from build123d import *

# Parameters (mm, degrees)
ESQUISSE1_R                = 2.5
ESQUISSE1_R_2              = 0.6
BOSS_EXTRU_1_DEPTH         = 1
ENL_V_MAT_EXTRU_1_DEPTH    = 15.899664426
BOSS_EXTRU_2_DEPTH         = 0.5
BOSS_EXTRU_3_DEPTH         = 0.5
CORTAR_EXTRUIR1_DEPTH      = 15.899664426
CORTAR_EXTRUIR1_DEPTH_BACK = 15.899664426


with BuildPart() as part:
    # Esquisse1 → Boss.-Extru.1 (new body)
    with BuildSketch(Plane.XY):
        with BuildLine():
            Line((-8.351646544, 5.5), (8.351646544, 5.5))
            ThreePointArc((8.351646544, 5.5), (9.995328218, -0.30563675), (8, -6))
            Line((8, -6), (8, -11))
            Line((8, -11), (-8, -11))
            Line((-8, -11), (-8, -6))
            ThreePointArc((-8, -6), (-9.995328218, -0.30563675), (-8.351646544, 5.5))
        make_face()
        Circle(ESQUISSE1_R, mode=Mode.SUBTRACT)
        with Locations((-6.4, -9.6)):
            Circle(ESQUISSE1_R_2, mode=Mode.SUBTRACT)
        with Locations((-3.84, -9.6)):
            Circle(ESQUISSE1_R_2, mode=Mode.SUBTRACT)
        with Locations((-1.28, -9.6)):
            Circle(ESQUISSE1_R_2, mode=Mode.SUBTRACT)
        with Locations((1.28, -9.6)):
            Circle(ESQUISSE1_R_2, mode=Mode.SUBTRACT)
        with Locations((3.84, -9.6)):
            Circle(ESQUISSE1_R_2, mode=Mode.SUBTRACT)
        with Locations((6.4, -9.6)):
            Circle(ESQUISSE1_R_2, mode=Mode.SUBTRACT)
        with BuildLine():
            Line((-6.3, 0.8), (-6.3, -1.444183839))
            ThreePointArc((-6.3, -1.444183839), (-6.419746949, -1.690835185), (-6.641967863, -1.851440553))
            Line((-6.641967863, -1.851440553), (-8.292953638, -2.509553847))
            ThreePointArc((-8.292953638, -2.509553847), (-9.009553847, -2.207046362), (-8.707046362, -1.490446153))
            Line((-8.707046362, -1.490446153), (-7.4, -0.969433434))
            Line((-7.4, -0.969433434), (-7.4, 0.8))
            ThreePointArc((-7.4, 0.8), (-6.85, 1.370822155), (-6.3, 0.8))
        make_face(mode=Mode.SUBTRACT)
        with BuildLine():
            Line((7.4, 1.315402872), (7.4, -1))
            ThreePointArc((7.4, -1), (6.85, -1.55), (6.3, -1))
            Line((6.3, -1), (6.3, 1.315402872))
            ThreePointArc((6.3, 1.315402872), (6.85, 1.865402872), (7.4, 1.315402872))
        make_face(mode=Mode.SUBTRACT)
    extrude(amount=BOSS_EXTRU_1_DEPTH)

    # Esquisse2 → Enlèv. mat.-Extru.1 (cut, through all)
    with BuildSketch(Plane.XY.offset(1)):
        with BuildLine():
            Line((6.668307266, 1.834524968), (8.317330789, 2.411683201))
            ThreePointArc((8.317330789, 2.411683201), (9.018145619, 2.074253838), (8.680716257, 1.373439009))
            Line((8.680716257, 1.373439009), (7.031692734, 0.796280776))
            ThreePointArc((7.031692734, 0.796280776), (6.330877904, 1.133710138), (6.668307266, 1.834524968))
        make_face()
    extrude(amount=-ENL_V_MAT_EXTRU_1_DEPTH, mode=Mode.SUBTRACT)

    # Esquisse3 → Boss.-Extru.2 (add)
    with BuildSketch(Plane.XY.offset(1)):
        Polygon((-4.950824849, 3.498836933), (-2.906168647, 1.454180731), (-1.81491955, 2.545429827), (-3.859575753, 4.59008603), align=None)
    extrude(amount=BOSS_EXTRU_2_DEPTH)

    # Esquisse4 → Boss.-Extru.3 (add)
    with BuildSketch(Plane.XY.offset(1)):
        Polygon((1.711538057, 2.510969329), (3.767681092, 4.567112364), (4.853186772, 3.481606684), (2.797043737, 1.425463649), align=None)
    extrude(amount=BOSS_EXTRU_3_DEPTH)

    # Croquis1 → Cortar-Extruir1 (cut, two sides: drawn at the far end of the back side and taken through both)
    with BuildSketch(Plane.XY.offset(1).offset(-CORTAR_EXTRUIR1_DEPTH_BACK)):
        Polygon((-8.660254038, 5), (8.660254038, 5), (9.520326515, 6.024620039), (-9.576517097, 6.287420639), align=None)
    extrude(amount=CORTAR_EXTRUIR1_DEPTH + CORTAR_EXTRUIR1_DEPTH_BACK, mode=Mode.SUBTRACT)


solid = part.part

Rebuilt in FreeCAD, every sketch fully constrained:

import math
import FreeCAD as App
import Part
import Sketcher
Q = App.Units.Quantity


def add_polygon(sketch, points):
    """Adds a closed chain of lines whose ends are joined by coincident constraints."""
    first, n = sketch.GeometryCount, len(points)
    for a, b in zip(points, points[1:] + points[:1]):
        sketch.addGeometry(Part.LineSegment(App.Vector(*a, 0), App.Vector(*b, 0)), False)
    for i in range(n):
        sketch.addConstraint(Sketcher.Constraint("Coincident", first + i, 2, first + (i + 1) % n, 1))

doc = App.newDocument("Part")
body = doc.addObject("PartDesign::Body", "Body")

# Sketch on XY plane
sketch1 = doc.addObject("Sketcher::SketchObject", "Sketch")
body.addObject(sketch1)
sketch1.AttachmentSupport = (doc.XY_Plane, [""])
sketch1.MapMode = "FlatFace"
sketch1.addGeometry(Part.LineSegment(App.Vector(8.351647, 5.5, 0), App.Vector(-8.351647, 5.5, 0)), False)
sketch1.addGeometry(Part.ArcOfCircle(Part.Circle(App.Vector(0, 0, 0), App.Vector(0, 0, 1), 10), math.radians(146.632987), math.radians(216.869898)), False)
sketch1.addGeometry(Part.LineSegment(App.Vector(-8, -6, 0), App.Vector(-8, -11, 0)), False)
sketch1.addGeometry(Part.LineSegment(App.Vector(-8, -11, 0), App.Vector(8, -11, 0)), False)
sketch1.addGeometry(Part.LineSegment(App.Vector(8, -11, 0), App.Vector(8, -6, 0)), False)
sketch1.addGeometry(Part.ArcOfCircle(Part.Circle(App.Vector(0, 0, 0), App.Vector(0, 0, 1), 10), math.radians(-36.869898), math.radians(33.367013)), False)
sketch1.addGeometry(Part.Circle(App.Vector(6.4, -9.6, 0), App.Vector(0, 0, 1), 0.6), False)
sketch1.addGeometry(Part.Circle(App.Vector(3.84, -9.6, 0), App.Vector(0, 0, 1), 0.6), False)
sketch1.addGeometry(Part.Circle(App.Vector(1.28, -9.6, 0), App.Vector(0, 0, 1), 0.6), False)
sketch1.addGeometry(Part.Circle(App.Vector(-1.28, -9.6, 0), App.Vector(0, 0, 1), 0.6), False)
sketch1.addGeometry(Part.Circle(App.Vector(-3.84, -9.6, 0), App.Vector(0, 0, 1), 0.6), False)
sketch1.addGeometry(Part.Circle(App.Vector(-6.4, -9.6, 0), App.Vector(0, 0, 1), 0.6), False)
sketch1.addGeometry(Part.LineSegment(App.Vector(7.4, 1.315403, 0), App.Vector(7.4, -1, 0)), False)
sketch1.addGeometry(Part.ArcOfCircle(Part.Circle(App.Vector(6.85, -1, 0), App.Vector(0, 0, 1), 0.55), math.radians(180), math.radians(360)), False)
sketch1.addGeometry(Part.LineSegment(App.Vector(6.3, -1, 0), App.Vector(6.3, 1.315403, 0)), False)
sketch1.addGeometry(Part.ArcOfCircle(Part.Circle(App.Vector(6.85, 1.315403, 0), App.Vector(0, 0, 1), 0.55), math.radians(0), math.radians(180)), False)
sketch1.addGeometry(Part.Circle(App.Vector(0, 0, 0), App.Vector(0, 0, 1), 2.5), False)
sketch1.addGeometry(Part.LineSegment(App.Vector(-6.3, 0.8, 0), App.Vector(-6.3, -1.444184, 0)), False)
sketch1.addGeometry(Part.ArcOfCircle(Part.Circle(App.Vector(-6.85, -1.329558, 0), App.Vector(0, 0, 1), 0.561818), math.radians(-68.266865), math.radians(-11.772571)), False)
sketch1.addGeometry(Part.LineSegment(App.Vector(-6.641968, -1.851441, 0), App.Vector(-8.292954, -2.509554, 0)), False)
sketch1.addGeometry(Part.ArcOfCircle(Part.Circle(App.Vector(-8.5, -2, 0), App.Vector(0, 0, 1), 0.550012), math.radians(112.11332), math.radians(292.11332)), False)
sketch1.addGeometry(Part.LineSegment(App.Vector(-8.707046, -1.490446, 0), App.Vector(-7.4, -0.969433, 0)), False)
sketch1.addGeometry(Part.LineSegment(App.Vector(-7.4, -0.969433, 0), App.Vector(-7.4, 0.8, 0)), False)
sketch1.addGeometry(Part.ArcOfCircle(Part.Circle(App.Vector(-6.85, 0.820442, 0), App.Vector(0, 0, 1), 0.55038), math.radians(-2.128588), math.radians(182.128588)), False)
sketch1.addConstraint(Sketcher.Constraint("Coincident", 0, 2, 1, 1))
sketch1.addConstraint(Sketcher.Constraint("Coincident", 1, 2, 2, 1))
sketch1.addConstraint(Sketcher.Constraint("Coincident", 2, 2, 3, 1))
sketch1.addConstraint(Sketcher.Constraint("Coincident", 3, 2, 4, 1))
sketch1.addConstraint(Sketcher.Constraint("Coincident", 4, 2, 5, 1))
sketch1.addConstraint(Sketcher.Constraint("Coincident", 5, 2, 0, 1))
sketch1.addConstraint(Sketcher.Constraint("Coincident", 12, 2, 13, 2))
sketch1.addConstraint(Sketcher.Constraint("Coincident", 13, 1, 14, 1))
sketch1.addConstraint(Sketcher.Constraint("Coincident", 14, 2, 15, 2))
sketch1.addConstraint(Sketcher.Constraint("Coincident", 15, 1, 12, 1))
sketch1.addConstraint(Sketcher.Constraint("Coincident", 17, 2, 18, 2))
sketch1.addConstraint(Sketcher.Constraint("Coincident", 18, 1, 19, 1))
sketch1.addConstraint(Sketcher.Constraint("Coincident", 19, 2, 20, 2))
sketch1.addConstraint(Sketcher.Constraint("Coincident", 20, 1, 21, 1))
sketch1.addConstraint(Sketcher.Constraint("Coincident", 21, 2, 22, 1))
sketch1.addConstraint(Sketcher.Constraint("Coincident", 22, 2, 23, 2))
sketch1.addConstraint(Sketcher.Constraint("Coincident", 23, 1, 17, 1))
sketch1.addConstraint(Sketcher.Constraint("Horizontal", 0))
sketch1.addConstraint(Sketcher.Constraint("Vertical", 2))
sketch1.addConstraint(Sketcher.Constraint("Horizontal", 3))
sketch1.addConstraint(Sketcher.Constraint("Vertical", 4))
sketch1.addConstraint(Sketcher.Constraint("Vertical", 12))
sketch1.addConstraint(Sketcher.Constraint("Vertical", 14))
sketch1.addConstraint(Sketcher.Constraint("Vertical", 17))
sketch1.addConstraint(Sketcher.Constraint("Vertical", 22))
sketch1.addConstraint(Sketcher.Constraint("Coincident", 1, 3, -1, 1))
sketch1.addConstraint(Sketcher.Constraint("Coincident", 5, 3, -1, 1))
sketch1.addConstraint(Sketcher.Constraint("Coincident", 16, 3, -1, 1))
sketch1.addConstraint(Sketcher.Constraint("Diameter", 16, Q("5 mm")))
sketch1.addConstraint(Sketcher.Constraint("Radius", 1, Q("10 mm")))
sketch1.addConstraint(Sketcher.Constraint("Radius", 5, Q("10 mm")))
sketch1.addConstraint(Sketcher.Constraint("Diameter", 6, Q("1.2 mm")))
sketch1.addConstraint(Sketcher.Constraint("Diameter", 7, Q("1.2 mm")))
sketch1.addConstraint(Sketcher.Constraint("Diameter", 8, Q("1.2 mm")))
sketch1.addConstraint(Sketcher.Constraint("Diameter", 9, Q("1.2 mm")))
sketch1.addConstraint(Sketcher.Constraint("Diameter", 10, Q("1.2 mm")))
sketch1.addConstraint(Sketcher.Constraint("Diameter", 11, Q("1.2 mm")))
sketch1.addConstraint(Sketcher.Constraint("DistanceX", 3, 1, 3, 2, Q("16 mm")))
sketch1.addConstraint(Sketcher.Constraint("DistanceY", 2, 2, 2, 1, Q("5 mm")))
sketch1.addConstraint(Sketcher.Constraint("DistanceY", 4, 1, 4, 2, Q("5 mm")))
sketch1.addConstraint(Sketcher.Constraint("Radius", 13, Q("0.55 mm")))
sketch1.addConstraint(Sketcher.Constraint("DistanceY", 13, 3, -1, 1, Q("1 mm")))
sketch1.addConstraint(Sketcher.Constraint("DistanceY", 20, 3, -1, 1, Q("2 mm")))
sketch1.addConstraint(Sketcher.Constraint("DistanceY", 12, 2, -1, 1, Q("1 mm")))
sketch1.addConstraint(Sketcher.Constraint("DistanceY", 13, 1, -1, 1, Q("1 mm")))
sketch1.addConstraint(Sketcher.Constraint("DistanceX", -1, 1, 6, 3, Q("6.4 mm")))
sketch1.addConstraint(Sketcher.Constraint("DistanceY", 6, 3, -1, 1, Q("9.6 mm")))
sketch1.addConstraint(Sketcher.Constraint("DistanceY", 7, 3, -1, 1, Q("9.6 mm")))
sketch1.addConstraint(Sketcher.Constraint("DistanceY", 8, 3, -1, 1, Q("9.6 mm")))
sketch1.addConstraint(Sketcher.Constraint("DistanceY", 9, 3, -1, 1, Q("9.6 mm")))
sketch1.addConstraint(Sketcher.Constraint("DistanceY", 10, 3, -1, 1, Q("9.6 mm")))
sketch1.addConstraint(Sketcher.Constraint("DistanceX", 11, 3, -1, 1, Q("6.4 mm")))
sketch1.addConstraint(Sketcher.Constraint("DistanceY", 11, 3, -1, 1, Q("9.6 mm")))
sketch1.addConstraint(Sketcher.Constraint("DistanceX", 20, 3, -1, 1, Q("8.5 mm")))
sketch1.addConstraint(Sketcher.Constraint("DistanceY", -1, 1, 0, 2, Q("5.5 mm")))
sketch1.addConstraint(Sketcher.Constraint("DistanceX", -1, 1, 12, 2, Q("7.4 mm")))
sketch1.addConstraint(Sketcher.Constraint("DistanceX", 17, 2, -1, 1, Q("6.3 mm")))
sketch1.addConstraint(Sketcher.Constraint("DistanceX", 21, 2, -1, 1, Q("7.4 mm")))
sketch1.addConstraint(Sketcher.Constraint("DistanceY", -1, 1, 22, 2, Q("0.8 mm")))
sketch1.addConstraint(Sketcher.Constraint("DistanceY", -1, 1, 23, 1, Q("0.8 mm")))
sketch1.addConstraint(Sketcher.Constraint("DistanceX", -1, 1, 7, 3, Q("3.84 mm")))
sketch1.addConstraint(Sketcher.Constraint("DistanceX", -1, 1, 8, 3, Q("1.28 mm")))
sketch1.addConstraint(Sketcher.Constraint("DistanceX", 9, 3, -1, 1, Q("1.28 mm")))
sketch1.addConstraint(Sketcher.Constraint("DistanceX", 10, 3, -1, 1, Q("3.84 mm")))
sketch1.addConstraint(Sketcher.Constraint("DistanceX", 18, 3, -1, 1, Q("6.85 mm")))
sketch1.addConstraint(Sketcher.Constraint("Radius", 23, Q("0.55038 mm")))
sketch1.addConstraint(Sketcher.Constraint("DistanceY", 18, 3, 23, 3, Q("2.15 mm")))
sketch1.addConstraint(Sketcher.Constraint("Radius", 18, Q("0.561818 mm")))
sketch1.addConstraint(Sketcher.Constraint("Radius", 20, Q("0.550012 mm")))
sketch1.addConstraint(Sketcher.Constraint("Distance", 19, Q("1.77732 mm")))
sketch1.addConstraint(Sketcher.Constraint("DistanceY", 12, 2, 12, 1, Q("2.315403 mm")))
sketch1.addConstraint(Sketcher.Constraint("DistanceY", 14, 1, 14, 2, Q("2.315403 mm")))
sketch1.addConstraint(Sketcher.Constraint("DistanceY", 22, 1, 22, 2, Q("1.769433 mm")))
sketch1.addConstraint(Sketcher.Constraint("DistanceY", 18, 1, -1, 1, Q("1.851441 mm")))
sketch1.addConstraint(Sketcher.Constraint("DistanceY", 20, 1, 18, 3, Q("0.160889 mm")))
sketch1.addConstraint(Sketcher.Constraint("DistanceY", -1, 1, 15, 3, Q("1.315403 mm")))
pad1 = doc.addObject("PartDesign::Pad", "Pad")
body.addObject(pad1)
pad1.Profile = sketch1
pad1.Length = 1

# Sketch on XY plane
sketch2 = doc.addObject("Sketcher::SketchObject", "Sketch001")
body.addObject(sketch2)
sketch2.AttachmentSupport = (doc.XY_Plane, [""])
sketch2.MapMode = "FlatFace"
sketch2.AttachmentOffset = App.Placement(App.Vector(0, 0, 1), App.Rotation())
sketch2.addGeometry(Part.LineSegment(App.Vector(8.3, 2.4, 0), App.Vector(6.7, 1.8, 0)), False)
sketch2.addGeometry(Part.ArcOfCircle(Part.Circle(App.Vector(6.8, 1.3, 0), App.Vector(0, 0, 1), 0.6), math.radians(109), math.radians(289)), False)
sketch2.addGeometry(Part.LineSegment(App.Vector(7, 0.8, 0), App.Vector(8.7, 1.4, 0)), False)
sketch2.addGeometry(Part.ArcOfCircle(Part.Circle(App.Vector(8.5, 1.9, 0), App.Vector(0, 0, 1), 0.6), math.radians(-71), math.radians(109)), False)
sketch2.addConstraint(Sketcher.Constraint("Tangent", 0, 2, 1, 1))
sketch2.addConstraint(Sketcher.Constraint("Tangent", 1, 2, 2, 1))
sketch2.addConstraint(Sketcher.Constraint("Tangent", 2, 2, 3, 1))
sketch2.addConstraint(Sketcher.Constraint("Tangent", 3, 2, 0, 1))
sketch2.addConstraint(Sketcher.Constraint("Equal", 1, 3))
sketch2.addConstraint(Sketcher.Constraint("Radius", 1, Q("0.55 mm")))
sketch2.addConstraint(Sketcher.Constraint("DistanceX", -1, 1, 1, 3, Q("6.85 mm")))
sketch2.addConstraint(Sketcher.Constraint("Distance", 0, Q("1.747109 mm")))
sketch2.addConstraint(Sketcher.Constraint("DistanceY", -1, 1, 3, 3, Q("1.892561 mm")))
sketch2.addConstraint(Sketcher.Constraint("DistanceY", -1, 1, 1, 2, Q("0.796281 mm")))
pocket1 = doc.addObject("PartDesign::Pocket", "Pocket")
body.addObject(pocket1)
pocket1.Profile = sketch2
pocket1.Type = "ThroughAll"

# Sketch on XY plane
sketch3 = doc.addObject("Sketcher::SketchObject", "Sketch002")
body.addObject(sketch3)
sketch3.AttachmentSupport = (doc.XY_Plane, [""])
sketch3.MapMode = "FlatFace"
sketch3.AttachmentOffset = App.Placement(App.Vector(0, 0, 1), App.Rotation())
add_polygon(sketch3, [(-5, 3.5), (-2.9, 1.5), (-1.8, 2.5), (-3.9, 4.6)])  # lines 0-3
sketch3.addConstraint(Sketcher.Constraint("Perpendicular", 0, 1))
sketch3.addConstraint(Sketcher.Constraint("Perpendicular", 1, 2))
sketch3.addConstraint(Sketcher.Constraint("Perpendicular", 2, 3))
sketch3.addConstraint(Sketcher.Constraint("Angle", 0, Q("-45 deg")))
sketch3.addConstraint(Sketcher.Constraint("Distance", 0, Q("2.891581 mm")))
sketch3.addConstraint(Sketcher.Constraint("Distance", 1, Q("1.543259 mm")))
sketch3.addConstraint(Sketcher.Constraint("DistanceX", 0, 2, -1, 1, Q("2.906169 mm")))
sketch3.addConstraint(Sketcher.Constraint("DistanceY", -1, 1, 0, 2, Q("1.454181 mm")))
pad2 = doc.addObject("PartDesign::Pad", "Pad001")
body.addObject(pad2)
pad2.Profile = sketch3
pad2.Length = 0.5

# Sketch on XY plane
sketch4 = doc.addObject("Sketcher::SketchObject", "Sketch003")
body.addObject(sketch4)
sketch4.AttachmentSupport = (doc.XY_Plane, [""])
sketch4.MapMode = "FlatFace"
sketch4.AttachmentOffset = App.Placement(App.Vector(0, 0, 1), App.Rotation())
add_polygon(sketch4, [(3.8, 4.6), (1.7, 2.5), (2.8, 1.4), (4.9, 3.5)])  # lines 0-3
sketch4.addConstraint(Sketcher.Constraint("Perpendicular", 0, 1))
sketch4.addConstraint(Sketcher.Constraint("Perpendicular", 1, 2))
sketch4.addConstraint(Sketcher.Constraint("Perpendicular", 2, 3))
sketch4.addConstraint(Sketcher.Constraint("Angle", 0, Q("-135 deg")))
sketch4.addConstraint(Sketcher.Constraint("DistanceX", -1, 1, 0, 2, Q("1.711538 mm")))
sketch4.addConstraint(Sketcher.Constraint("DistanceY", -1, 1, 0, 2, Q("2.510969 mm")))
sketch4.addConstraint(Sketcher.Constraint("DistanceX", -1, 1, 3, 2, Q("3.767681 mm")))
sketch4.addConstraint(Sketcher.Constraint("DistanceX", 0, 2, 2, 2, Q("3.141649 mm")))
pad3 = doc.addObject("PartDesign::Pad", "Pad002")
body.addObject(pad3)
pad3.Profile = sketch4
pad3.Length = 0.5

# Sketch on XY plane
sketch5 = doc.addObject("Sketcher::SketchObject", "Sketch004")
body.addObject(sketch5)
sketch5.AttachmentSupport = (doc.XY_Plane, [""])
sketch5.MapMode = "FlatFace"
sketch5.AttachmentOffset = App.Placement(App.Vector(0, 0, 1), App.Rotation())
add_polygon(sketch5, [(-8.7, 5), (8.7, 5), (9.5, 6), (-9.6, 6.3)])  # lines 0-3
sketch5.addConstraint(Sketcher.Constraint("Horizontal", 0))
sketch5.addConstraint(Sketcher.Constraint("DistanceY", -1, 1, 0, 2, Q("5 mm")))
sketch5.addConstraint(Sketcher.Constraint("DistanceX", 0, 1, 0, 2, Q("17.320508 mm")))
sketch5.addConstraint(Sketcher.Constraint("DistanceY", 1, 2, 2, 2, Q("0.262801 mm")))
sketch5.addConstraint(Sketcher.Constraint("Distance", 1, Q("1.337748 mm")))
sketch5.addConstraint(Sketcher.Constraint("Distance", 2, Q("19.098652 mm")))
sketch5.addConstraint(Sketcher.Constraint("DistanceY", -1, 1, 1, 2, Q("6.02462 mm")))
sketch5.addConstraint(Sketcher.Constraint("DistanceX", -1, 1, 0, 2, Q("8.660254 mm")))
pocket2 = doc.addObject("PartDesign::Pocket", "Pocket001")
body.addObject(pocket2)
pocket2.Profile = sketch5
pocket2.Type = "ThroughAll"
pocket2.Midplane = True

doc.recompute()
